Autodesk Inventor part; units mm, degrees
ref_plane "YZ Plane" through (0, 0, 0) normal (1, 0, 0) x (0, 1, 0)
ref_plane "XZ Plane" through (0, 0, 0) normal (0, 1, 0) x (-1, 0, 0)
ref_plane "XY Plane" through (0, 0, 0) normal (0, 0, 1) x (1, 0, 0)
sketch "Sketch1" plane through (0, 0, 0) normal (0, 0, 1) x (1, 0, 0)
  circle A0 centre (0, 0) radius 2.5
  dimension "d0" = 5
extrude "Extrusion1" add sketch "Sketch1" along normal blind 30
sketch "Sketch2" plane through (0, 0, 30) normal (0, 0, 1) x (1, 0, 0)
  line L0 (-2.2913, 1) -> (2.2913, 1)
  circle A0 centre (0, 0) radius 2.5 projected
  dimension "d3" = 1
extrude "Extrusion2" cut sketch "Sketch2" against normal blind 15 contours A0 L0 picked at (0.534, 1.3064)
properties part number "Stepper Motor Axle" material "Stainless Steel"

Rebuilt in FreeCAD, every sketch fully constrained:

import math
import FreeCAD as App
import Part
import Sketcher

V = App.Vector
Q = App.Units.Quantity

doc = App.newDocument("Part")
body = doc.addObject("PartDesign::Body", "Body")

# Sketch on XY plane
sketch1 = body.newObject("Sketcher::SketchObject", "Sketch")
sketch1.AttachmentSupport = (doc.getObject("XY_Plane"), [""])
sketch1.MapMode = "FlatFace"
sketch1.addGeometry(Part.Circle(V(0, 0, 0), V(0, 0, 1), 2.5), False)
sketch1.addConstraint([
    Sketcher.Constraint("Coincident", 0, 3, -1, 1),
    Sketcher.Constraint("Diameter", 0, Q("5 mm")),
])
pad1 = body.newObject("PartDesign::Pad", "Pad")
pad1.Profile = sketch1
pad1.Length = 30

# Sketch on XY plane
sketch2 = body.newObject("Sketcher::SketchObject", "Sketch001")
sketch2.AttachmentSupport = (doc.getObject("XY_Plane"), [""])
sketch2.MapMode = "FlatFace"
sketch2.AttachmentOffset = App.Placement(V(0, 0, 30), App.Rotation())
sketch2.addGeometry([
    Part.ArcOfCircle(Part.Circle(V(0, 0, 0), V(0, 0, 1), 2.5), math.radians(24), math.radians(156)),
    Part.LineSegment(V(2.3, 1, 0), V(-2.3, 1, 0)),
], False)
sketch2.addConstraint([
    Sketcher.Constraint("Coincident", 0, 1, 1, 1),
    Sketcher.Constraint("Coincident", 1, 2, 0, 2),
    Sketcher.Constraint("Horizontal", 1),
    Sketcher.Constraint("Coincident", 0, 3, -1, 1),
    Sketcher.Constraint("DistanceY", -1, 1, 0, 1, Q("1 mm")),
    Sketcher.Constraint("Radius", 0, Q("2.5 mm")),
])
pocket1 = body.newObject("PartDesign::Pocket", "Pocket")
pocket1.Profile = sketch2
pocket1.Length = 15

doc.recompute()
